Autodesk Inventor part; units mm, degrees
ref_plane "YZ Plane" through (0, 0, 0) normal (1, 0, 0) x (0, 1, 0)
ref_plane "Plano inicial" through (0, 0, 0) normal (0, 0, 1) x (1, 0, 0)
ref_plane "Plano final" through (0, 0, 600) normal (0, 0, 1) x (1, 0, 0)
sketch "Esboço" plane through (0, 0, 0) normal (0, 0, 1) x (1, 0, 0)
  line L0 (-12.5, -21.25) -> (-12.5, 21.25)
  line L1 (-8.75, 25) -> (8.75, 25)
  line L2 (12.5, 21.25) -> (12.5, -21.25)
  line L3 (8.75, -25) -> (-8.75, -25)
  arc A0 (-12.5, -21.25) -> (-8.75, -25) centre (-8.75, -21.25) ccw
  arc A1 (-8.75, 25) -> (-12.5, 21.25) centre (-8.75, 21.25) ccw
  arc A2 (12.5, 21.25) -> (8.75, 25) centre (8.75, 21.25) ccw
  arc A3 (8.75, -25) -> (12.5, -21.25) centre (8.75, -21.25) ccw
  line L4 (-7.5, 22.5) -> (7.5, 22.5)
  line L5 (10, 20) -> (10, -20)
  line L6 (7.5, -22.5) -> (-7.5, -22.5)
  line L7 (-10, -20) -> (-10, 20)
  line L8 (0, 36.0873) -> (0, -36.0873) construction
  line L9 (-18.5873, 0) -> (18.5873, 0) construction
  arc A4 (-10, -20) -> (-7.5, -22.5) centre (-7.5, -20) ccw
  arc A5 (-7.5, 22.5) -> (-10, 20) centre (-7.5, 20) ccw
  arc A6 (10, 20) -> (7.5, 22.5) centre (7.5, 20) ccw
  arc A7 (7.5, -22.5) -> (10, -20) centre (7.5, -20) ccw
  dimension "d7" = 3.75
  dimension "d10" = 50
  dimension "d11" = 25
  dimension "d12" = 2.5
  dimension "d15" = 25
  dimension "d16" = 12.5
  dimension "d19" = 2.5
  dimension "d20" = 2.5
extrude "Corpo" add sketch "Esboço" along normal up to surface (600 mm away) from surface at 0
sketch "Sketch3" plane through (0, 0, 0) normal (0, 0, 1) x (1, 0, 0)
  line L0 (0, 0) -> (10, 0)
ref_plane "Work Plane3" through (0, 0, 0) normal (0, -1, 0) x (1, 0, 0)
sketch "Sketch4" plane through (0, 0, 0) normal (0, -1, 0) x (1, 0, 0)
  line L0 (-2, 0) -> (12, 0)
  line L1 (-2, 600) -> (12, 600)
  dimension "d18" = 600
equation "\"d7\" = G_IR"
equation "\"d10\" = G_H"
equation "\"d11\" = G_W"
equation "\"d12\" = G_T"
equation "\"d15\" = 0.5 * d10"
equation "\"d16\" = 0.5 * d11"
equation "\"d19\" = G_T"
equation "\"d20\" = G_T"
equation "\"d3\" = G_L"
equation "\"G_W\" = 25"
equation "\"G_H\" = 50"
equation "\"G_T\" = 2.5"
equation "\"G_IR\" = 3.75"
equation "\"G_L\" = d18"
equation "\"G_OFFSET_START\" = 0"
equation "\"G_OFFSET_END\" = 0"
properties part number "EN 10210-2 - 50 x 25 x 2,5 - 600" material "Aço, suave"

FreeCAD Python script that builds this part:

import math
import FreeCAD as App
import Part
import Sketcher

V = App.Vector

doc = App.newDocument("Part")
body = doc.addObject("PartDesign::Body", "Body")

sketch1 = body.newObject("Sketcher::SketchObject", "Sketch")
sketch1.AttachmentSupport = (doc.getObject("XY_Plane"), [""])
sketch1.MapMode = "FlatFace"
sketch1.addGeometry([
    Part.LineSegment(V(-12.5, 21.2, 0), V(-12.5, -21.2, 0)),
    Part.ArcOfCircle(Part.Circle(V(-8.8, -21.2, 0), V(0, 0, 1), 3.8), math.radians(180), math.radians(270)),
    Part.LineSegment(V(-8.8, -25, 0), V(8.8, -25, 0)),
    Part.ArcOfCircle(Part.Circle(V(8.8, -21.2, 0), V(0, 0, 1), 3.8), math.radians(-90), math.radians(0)),
    Part.LineSegment(V(12.5, -21.2, 0), V(12.5, 21.2, 0)),
    Part.ArcOfCircle(Part.Circle(V(8.8, 21.2, 0), V(0, 0, 1), 3.8), math.radians(0), math.radians(90)),
    Part.LineSegment(V(8.8, 25, 0), V(-8.8, 25, 0)),
    Part.ArcOfCircle(Part.Circle(V(-8.8, 21.2, 0), V(0, 0, 1), 3.8), math.radians(90), math.radians(180)),
    Part.ArcOfCircle(Part.Circle(V(-7.5, 20, 0), V(0, 0, 1), 2.5), math.radians(90), math.radians(180)),
    Part.LineSegment(V(-7.5, 22.5, 0), V(7.5, 22.5, 0)),
    Part.ArcOfCircle(Part.Circle(V(7.5, 20, 0), V(0, 0, 1), 2.5), math.radians(0), math.radians(90)),
    Part.LineSegment(V(10, 20, 0), V(10, -20, 0)),
    Part.ArcOfCircle(Part.Circle(V(7.5, -20, 0), V(0, 0, 1), 2.5), math.radians(-90), math.radians(0)),
    Part.LineSegment(V(7.5, -22.5, 0), V(-7.5, -22.5, 0)),
    Part.ArcOfCircle(Part.Circle(V(-7.5, -20, 0), V(0, 0, 1), 2.5), math.radians(180), math.radians(270)),
    Part.LineSegment(V(-10, -20, 0), V(-10, 20, 0)),
], False)
sketch1.addConstraint([
    Sketcher.Constraint("Tangent", 0, 2, 1, 1),
    Sketcher.Constraint("Tangent", 1, 2, 2, 1),
    Sketcher.Constraint("Tangent", 2, 2, 3, 1),
    Sketcher.Constraint("Tangent", 3, 2, 4, 1),
    Sketcher.Constraint("Tangent", 4, 2, 5, 1),
    Sketcher.Constraint("Tangent", 5, 2, 6, 1),
    Sketcher.Constraint("Tangent", 6, 2, 7, 1),
    Sketcher.Constraint("Tangent", 7, 2, 0, 1),
    Sketcher.Constraint("Tangent", 8, 1, 9, 1),
    Sketcher.Constraint("Tangent", 9, 2, 10, 2),
    Sketcher.Constraint("Tangent", 10, 1, 11, 1),
    Sketcher.Constraint("Tangent", 11, 2, 12, 2),
    Sketcher.Constraint("Tangent", 12, 1, 13, 1),
    Sketcher.Constraint("Tangent", 13, 2, 14, 2),
    Sketcher.Constraint("Tangent", 14, 1, 15, 1),
    Sketcher.Constraint("Tangent", 15, 2, 8, 2),
    Sketcher.Constraint("Vertical", 0),
    Sketcher.Constraint("Horizontal", 2),
    Sketcher.Constraint("Vertical", 4),
    Sketcher.Constraint("Horizontal", 6),
    Sketcher.Constraint("Horizontal", 9),
    Sketcher.Constraint("Vertical", 11),
    Sketcher.Constraint("Horizontal", 13),
    Sketcher.Constraint("Vertical", 15),
    Sketcher.Constraint("Equal", 1, 3),
    Sketcher.Constraint("Equal", 3, 5),
    Sketcher.Constraint("Equal", 5, 7),
    Sketcher.Constraint("Equal", 8, 10),
    Sketcher.Constraint("Equal", 10, 12),
    Sketcher.Constraint("Equal", 12, 14),
    Sketcher.Constraint("Symmetric", 1, 3, 5, 3, -1, 1),
    Sketcher.Constraint("Symmetric", 8, 3, 12, 3, -1, 1),
    Sketcher.Constraint("Radius", 8, 2.5),
    Sketcher.Constraint("Radius", 1, 3.75),
    Sketcher.Constraint("DistanceY", 1, 2, -1, 1, 25.0),
    Sketcher.Constraint("DistanceX", 0, 2, -1, 1, 12.5),
    Sketcher.Constraint("DistanceY", 8, 1, 6, 2, 2.5),
    Sketcher.Constraint("DistanceX", 10, 1, 4, 2, 2.5),
])
pad1 = body.newObject("PartDesign::Pad", "Pad")
pad1.Profile = sketch1
pad1.Length = 600

doc.recompute()
